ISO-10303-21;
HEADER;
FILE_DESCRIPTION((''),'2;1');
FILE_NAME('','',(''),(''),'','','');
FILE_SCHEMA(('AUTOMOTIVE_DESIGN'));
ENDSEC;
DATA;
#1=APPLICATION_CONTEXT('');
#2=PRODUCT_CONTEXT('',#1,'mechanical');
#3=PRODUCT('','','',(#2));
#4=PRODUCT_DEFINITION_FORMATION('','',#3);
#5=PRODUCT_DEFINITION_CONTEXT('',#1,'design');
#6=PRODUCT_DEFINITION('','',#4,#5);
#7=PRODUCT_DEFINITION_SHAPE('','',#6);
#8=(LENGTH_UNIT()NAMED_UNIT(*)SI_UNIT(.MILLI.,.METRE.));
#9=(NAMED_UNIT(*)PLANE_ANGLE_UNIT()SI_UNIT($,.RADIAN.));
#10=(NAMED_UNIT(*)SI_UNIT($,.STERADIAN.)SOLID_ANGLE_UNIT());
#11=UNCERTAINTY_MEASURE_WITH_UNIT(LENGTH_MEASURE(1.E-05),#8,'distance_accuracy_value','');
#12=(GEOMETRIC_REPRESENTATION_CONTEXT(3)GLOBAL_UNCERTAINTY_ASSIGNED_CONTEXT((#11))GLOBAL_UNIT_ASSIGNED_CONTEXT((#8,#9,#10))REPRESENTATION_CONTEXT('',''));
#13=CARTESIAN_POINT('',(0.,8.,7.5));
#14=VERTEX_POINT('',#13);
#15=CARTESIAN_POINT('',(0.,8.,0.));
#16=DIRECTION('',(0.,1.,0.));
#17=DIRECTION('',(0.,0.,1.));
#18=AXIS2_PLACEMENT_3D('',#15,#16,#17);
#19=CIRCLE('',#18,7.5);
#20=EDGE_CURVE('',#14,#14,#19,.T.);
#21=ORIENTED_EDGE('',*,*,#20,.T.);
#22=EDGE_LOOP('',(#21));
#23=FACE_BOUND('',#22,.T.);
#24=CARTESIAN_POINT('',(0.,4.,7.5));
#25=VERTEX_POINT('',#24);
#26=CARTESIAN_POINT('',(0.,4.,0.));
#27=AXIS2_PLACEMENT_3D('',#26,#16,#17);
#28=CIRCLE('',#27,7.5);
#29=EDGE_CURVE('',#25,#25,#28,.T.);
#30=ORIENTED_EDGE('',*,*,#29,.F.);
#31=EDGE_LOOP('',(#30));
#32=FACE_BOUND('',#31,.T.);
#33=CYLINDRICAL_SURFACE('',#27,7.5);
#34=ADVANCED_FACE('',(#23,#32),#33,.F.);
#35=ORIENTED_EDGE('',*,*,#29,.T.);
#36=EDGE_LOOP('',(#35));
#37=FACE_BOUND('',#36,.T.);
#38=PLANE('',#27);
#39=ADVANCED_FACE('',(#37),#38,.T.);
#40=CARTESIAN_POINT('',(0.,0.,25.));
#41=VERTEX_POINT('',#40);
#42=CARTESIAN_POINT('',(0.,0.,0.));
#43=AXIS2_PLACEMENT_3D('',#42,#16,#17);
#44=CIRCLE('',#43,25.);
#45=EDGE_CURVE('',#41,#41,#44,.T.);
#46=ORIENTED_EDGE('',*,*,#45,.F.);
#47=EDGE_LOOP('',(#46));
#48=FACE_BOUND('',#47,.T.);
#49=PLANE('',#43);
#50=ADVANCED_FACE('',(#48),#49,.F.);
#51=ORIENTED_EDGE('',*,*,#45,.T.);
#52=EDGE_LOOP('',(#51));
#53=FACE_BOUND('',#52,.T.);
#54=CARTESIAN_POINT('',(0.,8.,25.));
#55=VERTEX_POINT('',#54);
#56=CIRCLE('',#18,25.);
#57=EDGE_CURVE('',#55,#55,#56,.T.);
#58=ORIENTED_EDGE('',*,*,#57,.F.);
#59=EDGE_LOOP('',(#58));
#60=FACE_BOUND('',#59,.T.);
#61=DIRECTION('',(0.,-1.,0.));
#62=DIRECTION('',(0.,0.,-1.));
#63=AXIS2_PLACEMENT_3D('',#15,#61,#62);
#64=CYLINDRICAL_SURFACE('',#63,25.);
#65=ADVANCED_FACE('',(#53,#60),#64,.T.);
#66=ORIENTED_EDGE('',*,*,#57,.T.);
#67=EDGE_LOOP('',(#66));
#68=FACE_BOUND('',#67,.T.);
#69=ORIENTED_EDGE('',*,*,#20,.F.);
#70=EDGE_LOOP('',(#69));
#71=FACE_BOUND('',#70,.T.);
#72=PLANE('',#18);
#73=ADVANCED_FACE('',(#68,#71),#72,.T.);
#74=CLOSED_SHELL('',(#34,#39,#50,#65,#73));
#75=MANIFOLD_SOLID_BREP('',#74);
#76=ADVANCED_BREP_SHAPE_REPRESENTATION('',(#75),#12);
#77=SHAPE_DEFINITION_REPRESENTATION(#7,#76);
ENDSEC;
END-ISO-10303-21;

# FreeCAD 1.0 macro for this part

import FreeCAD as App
import Part
import Sketcher
from FreeCAD import Vector

doc = App.newDocument("Part")
body = doc.addObject("PartDesign::Body", "Body")

# Sketch on XZ plane
sketch1 = doc.addObject("Sketcher::SketchObject", "Sketch")
body.addObject(sketch1)
sketch1.AttachmentSupport = (doc.XZ_Plane, [""])
sketch1.MapMode = "FlatFace"
sketch1.addGeometry(Part.Circle(Vector(0, 0, 0), Vector(0, 0, 1), 25), False)
sketch1.addConstraint(Sketcher.Constraint("Coincident", 0, 3, -1, 1))
sketch1.addConstraint(Sketcher.Constraint("Diameter", 0, 50.0))
pad1 = doc.addObject("PartDesign::Pad", "Pad")
body.addObject(pad1)
pad1.Profile = sketch1
pad1.Length = 8
pad1.Reversed = True

# Sketch on XZ plane
sketch2 = doc.addObject("Sketcher::SketchObject", "Sketch001")
body.addObject(sketch2)
sketch2.AttachmentSupport = (doc.XZ_Plane, [""])
sketch2.MapMode = "FlatFace"
sketch2.AttachmentOffset = App.Placement(Vector(0, 0, -8), App.Rotation())
sketch2.addGeometry(Part.Circle(Vector(0, 0, 0), Vector(0, 0, 1), 7.5), False)
sketch2.addConstraint(Sketcher.Constraint("Coincident", 0, 3, -1, 1))
sketch2.addConstraint(Sketcher.Constraint("Diameter", 0, 15.0))
pocket1 = doc.addObject("PartDesign::Pocket", "Pocket")
body.addObject(pocket1)
pocket1.Profile = sketch2
pocket1.Length = 4
pocket1.Reversed = True

doc.recompute()
